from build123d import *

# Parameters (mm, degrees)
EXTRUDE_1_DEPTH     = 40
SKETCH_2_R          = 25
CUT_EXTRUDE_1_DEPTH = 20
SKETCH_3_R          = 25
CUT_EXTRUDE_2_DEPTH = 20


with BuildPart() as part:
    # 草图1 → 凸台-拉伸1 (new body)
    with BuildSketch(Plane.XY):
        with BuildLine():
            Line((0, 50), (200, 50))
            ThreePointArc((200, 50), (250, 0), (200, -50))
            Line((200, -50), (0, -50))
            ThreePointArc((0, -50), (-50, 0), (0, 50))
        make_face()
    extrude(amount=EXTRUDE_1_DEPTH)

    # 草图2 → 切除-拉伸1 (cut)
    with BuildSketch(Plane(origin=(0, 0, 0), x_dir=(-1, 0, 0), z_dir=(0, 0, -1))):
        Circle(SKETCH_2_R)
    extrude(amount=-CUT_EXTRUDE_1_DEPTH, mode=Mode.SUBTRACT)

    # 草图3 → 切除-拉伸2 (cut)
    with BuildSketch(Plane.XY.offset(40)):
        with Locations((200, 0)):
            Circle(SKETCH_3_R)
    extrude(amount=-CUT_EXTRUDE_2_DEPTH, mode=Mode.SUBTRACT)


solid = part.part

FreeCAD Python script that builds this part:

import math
import FreeCAD as App
import Part
import Sketcher
from FreeCAD import Vector
Q = App.Units.Quantity

doc = App.newDocument("Part")
body = doc.addObject("PartDesign::Body", "Body")

# Sketch on XY plane
sketch1 = body.newObject("Sketcher::SketchObject", "Sketch")
sketch1.AttachmentSupport = (doc.getObject("XY_Plane"), [""])
sketch1.MapMode = "FlatFace"
sketch1.addGeometry([
    Part.LineSegment(Vector(200, 50, 0), Vector(0, 50, 0)),
    Part.ArcOfCircle(Part.Circle(Vector(0, 0, 0), Vector(0, 0, 1), 50), math.radians(90), math.radians(270)),
    Part.LineSegment(Vector(0, -50, 0), Vector(200, -50, 0)),
    Part.ArcOfCircle(Part.Circle(Vector(200, 0, 0), Vector(0, 0, 1), 50), math.radians(-90), math.radians(90)),
], False)
sketch1.addConstraint([
    Sketcher.Constraint("Tangent", 0, 2, 1, 1),
    Sketcher.Constraint("Tangent", 1, 2, 2, 1),
    Sketcher.Constraint("Tangent", 2, 2, 3, 1),
    Sketcher.Constraint("Tangent", 3, 2, 0, 1),
    Sketcher.Constraint("Horizontal", 0),
    Sketcher.Constraint("Horizontal", 2),
    Sketcher.Constraint("Coincident", 1, 3, -1, 1),
    Sketcher.Constraint("Radius", 1, Q("50 mm")),
    Sketcher.Constraint("DistanceX", 0, 2, 0, 1, Q("200 mm")),
])
pad1 = body.newObject("PartDesign::Pad", "Pad")
pad1.Profile = sketch1
pad1.Length = 40

# Sketch on XY plane
sketch2 = body.newObject("Sketcher::SketchObject", "Sketch001")
sketch2.AttachmentSupport = (doc.getObject("XY_Plane"), [""])
sketch2.MapMode = "FlatFace"
sketch2.addGeometry(Part.Circle(Vector(0, 0, 0), Vector(0, 0, 1), 25), False)
sketch2.addConstraint([
    Sketcher.Constraint("Coincident", 0, 3, -1, 1),
    Sketcher.Constraint("Diameter", 0, Q("50 mm")),
])
pocket1 = body.newObject("PartDesign::Pocket", "Pocket")
pocket1.Profile = sketch2
pocket1.Length = 20
pocket1.Reversed = True

# Sketch on XY plane
sketch3 = body.newObject("Sketcher::SketchObject", "Sketch002")
sketch3.AttachmentSupport = (doc.getObject("XY_Plane"), [""])
sketch3.MapMode = "FlatFace"
sketch3.AttachmentOffset = App.Placement(Vector(0, 0, 40), App.Rotation())
sketch3.addGeometry(Part.Circle(Vector(200, 0, 0), Vector(0, 0, 1), 25), False)
sketch3.addConstraint([
    Sketcher.Constraint("PointOnObject", 0, 3, -1),
    Sketcher.Constraint("Diameter", 0, Q("50 mm")),
    Sketcher.Constraint("DistanceX", -1, 1, 0, 3, Q("200 mm")),
])
pocket2 = body.newObject("PartDesign::Pocket", "Pocket001")
pocket2.Profile = sketch3
pocket2.Length = 20

doc.recompute()
